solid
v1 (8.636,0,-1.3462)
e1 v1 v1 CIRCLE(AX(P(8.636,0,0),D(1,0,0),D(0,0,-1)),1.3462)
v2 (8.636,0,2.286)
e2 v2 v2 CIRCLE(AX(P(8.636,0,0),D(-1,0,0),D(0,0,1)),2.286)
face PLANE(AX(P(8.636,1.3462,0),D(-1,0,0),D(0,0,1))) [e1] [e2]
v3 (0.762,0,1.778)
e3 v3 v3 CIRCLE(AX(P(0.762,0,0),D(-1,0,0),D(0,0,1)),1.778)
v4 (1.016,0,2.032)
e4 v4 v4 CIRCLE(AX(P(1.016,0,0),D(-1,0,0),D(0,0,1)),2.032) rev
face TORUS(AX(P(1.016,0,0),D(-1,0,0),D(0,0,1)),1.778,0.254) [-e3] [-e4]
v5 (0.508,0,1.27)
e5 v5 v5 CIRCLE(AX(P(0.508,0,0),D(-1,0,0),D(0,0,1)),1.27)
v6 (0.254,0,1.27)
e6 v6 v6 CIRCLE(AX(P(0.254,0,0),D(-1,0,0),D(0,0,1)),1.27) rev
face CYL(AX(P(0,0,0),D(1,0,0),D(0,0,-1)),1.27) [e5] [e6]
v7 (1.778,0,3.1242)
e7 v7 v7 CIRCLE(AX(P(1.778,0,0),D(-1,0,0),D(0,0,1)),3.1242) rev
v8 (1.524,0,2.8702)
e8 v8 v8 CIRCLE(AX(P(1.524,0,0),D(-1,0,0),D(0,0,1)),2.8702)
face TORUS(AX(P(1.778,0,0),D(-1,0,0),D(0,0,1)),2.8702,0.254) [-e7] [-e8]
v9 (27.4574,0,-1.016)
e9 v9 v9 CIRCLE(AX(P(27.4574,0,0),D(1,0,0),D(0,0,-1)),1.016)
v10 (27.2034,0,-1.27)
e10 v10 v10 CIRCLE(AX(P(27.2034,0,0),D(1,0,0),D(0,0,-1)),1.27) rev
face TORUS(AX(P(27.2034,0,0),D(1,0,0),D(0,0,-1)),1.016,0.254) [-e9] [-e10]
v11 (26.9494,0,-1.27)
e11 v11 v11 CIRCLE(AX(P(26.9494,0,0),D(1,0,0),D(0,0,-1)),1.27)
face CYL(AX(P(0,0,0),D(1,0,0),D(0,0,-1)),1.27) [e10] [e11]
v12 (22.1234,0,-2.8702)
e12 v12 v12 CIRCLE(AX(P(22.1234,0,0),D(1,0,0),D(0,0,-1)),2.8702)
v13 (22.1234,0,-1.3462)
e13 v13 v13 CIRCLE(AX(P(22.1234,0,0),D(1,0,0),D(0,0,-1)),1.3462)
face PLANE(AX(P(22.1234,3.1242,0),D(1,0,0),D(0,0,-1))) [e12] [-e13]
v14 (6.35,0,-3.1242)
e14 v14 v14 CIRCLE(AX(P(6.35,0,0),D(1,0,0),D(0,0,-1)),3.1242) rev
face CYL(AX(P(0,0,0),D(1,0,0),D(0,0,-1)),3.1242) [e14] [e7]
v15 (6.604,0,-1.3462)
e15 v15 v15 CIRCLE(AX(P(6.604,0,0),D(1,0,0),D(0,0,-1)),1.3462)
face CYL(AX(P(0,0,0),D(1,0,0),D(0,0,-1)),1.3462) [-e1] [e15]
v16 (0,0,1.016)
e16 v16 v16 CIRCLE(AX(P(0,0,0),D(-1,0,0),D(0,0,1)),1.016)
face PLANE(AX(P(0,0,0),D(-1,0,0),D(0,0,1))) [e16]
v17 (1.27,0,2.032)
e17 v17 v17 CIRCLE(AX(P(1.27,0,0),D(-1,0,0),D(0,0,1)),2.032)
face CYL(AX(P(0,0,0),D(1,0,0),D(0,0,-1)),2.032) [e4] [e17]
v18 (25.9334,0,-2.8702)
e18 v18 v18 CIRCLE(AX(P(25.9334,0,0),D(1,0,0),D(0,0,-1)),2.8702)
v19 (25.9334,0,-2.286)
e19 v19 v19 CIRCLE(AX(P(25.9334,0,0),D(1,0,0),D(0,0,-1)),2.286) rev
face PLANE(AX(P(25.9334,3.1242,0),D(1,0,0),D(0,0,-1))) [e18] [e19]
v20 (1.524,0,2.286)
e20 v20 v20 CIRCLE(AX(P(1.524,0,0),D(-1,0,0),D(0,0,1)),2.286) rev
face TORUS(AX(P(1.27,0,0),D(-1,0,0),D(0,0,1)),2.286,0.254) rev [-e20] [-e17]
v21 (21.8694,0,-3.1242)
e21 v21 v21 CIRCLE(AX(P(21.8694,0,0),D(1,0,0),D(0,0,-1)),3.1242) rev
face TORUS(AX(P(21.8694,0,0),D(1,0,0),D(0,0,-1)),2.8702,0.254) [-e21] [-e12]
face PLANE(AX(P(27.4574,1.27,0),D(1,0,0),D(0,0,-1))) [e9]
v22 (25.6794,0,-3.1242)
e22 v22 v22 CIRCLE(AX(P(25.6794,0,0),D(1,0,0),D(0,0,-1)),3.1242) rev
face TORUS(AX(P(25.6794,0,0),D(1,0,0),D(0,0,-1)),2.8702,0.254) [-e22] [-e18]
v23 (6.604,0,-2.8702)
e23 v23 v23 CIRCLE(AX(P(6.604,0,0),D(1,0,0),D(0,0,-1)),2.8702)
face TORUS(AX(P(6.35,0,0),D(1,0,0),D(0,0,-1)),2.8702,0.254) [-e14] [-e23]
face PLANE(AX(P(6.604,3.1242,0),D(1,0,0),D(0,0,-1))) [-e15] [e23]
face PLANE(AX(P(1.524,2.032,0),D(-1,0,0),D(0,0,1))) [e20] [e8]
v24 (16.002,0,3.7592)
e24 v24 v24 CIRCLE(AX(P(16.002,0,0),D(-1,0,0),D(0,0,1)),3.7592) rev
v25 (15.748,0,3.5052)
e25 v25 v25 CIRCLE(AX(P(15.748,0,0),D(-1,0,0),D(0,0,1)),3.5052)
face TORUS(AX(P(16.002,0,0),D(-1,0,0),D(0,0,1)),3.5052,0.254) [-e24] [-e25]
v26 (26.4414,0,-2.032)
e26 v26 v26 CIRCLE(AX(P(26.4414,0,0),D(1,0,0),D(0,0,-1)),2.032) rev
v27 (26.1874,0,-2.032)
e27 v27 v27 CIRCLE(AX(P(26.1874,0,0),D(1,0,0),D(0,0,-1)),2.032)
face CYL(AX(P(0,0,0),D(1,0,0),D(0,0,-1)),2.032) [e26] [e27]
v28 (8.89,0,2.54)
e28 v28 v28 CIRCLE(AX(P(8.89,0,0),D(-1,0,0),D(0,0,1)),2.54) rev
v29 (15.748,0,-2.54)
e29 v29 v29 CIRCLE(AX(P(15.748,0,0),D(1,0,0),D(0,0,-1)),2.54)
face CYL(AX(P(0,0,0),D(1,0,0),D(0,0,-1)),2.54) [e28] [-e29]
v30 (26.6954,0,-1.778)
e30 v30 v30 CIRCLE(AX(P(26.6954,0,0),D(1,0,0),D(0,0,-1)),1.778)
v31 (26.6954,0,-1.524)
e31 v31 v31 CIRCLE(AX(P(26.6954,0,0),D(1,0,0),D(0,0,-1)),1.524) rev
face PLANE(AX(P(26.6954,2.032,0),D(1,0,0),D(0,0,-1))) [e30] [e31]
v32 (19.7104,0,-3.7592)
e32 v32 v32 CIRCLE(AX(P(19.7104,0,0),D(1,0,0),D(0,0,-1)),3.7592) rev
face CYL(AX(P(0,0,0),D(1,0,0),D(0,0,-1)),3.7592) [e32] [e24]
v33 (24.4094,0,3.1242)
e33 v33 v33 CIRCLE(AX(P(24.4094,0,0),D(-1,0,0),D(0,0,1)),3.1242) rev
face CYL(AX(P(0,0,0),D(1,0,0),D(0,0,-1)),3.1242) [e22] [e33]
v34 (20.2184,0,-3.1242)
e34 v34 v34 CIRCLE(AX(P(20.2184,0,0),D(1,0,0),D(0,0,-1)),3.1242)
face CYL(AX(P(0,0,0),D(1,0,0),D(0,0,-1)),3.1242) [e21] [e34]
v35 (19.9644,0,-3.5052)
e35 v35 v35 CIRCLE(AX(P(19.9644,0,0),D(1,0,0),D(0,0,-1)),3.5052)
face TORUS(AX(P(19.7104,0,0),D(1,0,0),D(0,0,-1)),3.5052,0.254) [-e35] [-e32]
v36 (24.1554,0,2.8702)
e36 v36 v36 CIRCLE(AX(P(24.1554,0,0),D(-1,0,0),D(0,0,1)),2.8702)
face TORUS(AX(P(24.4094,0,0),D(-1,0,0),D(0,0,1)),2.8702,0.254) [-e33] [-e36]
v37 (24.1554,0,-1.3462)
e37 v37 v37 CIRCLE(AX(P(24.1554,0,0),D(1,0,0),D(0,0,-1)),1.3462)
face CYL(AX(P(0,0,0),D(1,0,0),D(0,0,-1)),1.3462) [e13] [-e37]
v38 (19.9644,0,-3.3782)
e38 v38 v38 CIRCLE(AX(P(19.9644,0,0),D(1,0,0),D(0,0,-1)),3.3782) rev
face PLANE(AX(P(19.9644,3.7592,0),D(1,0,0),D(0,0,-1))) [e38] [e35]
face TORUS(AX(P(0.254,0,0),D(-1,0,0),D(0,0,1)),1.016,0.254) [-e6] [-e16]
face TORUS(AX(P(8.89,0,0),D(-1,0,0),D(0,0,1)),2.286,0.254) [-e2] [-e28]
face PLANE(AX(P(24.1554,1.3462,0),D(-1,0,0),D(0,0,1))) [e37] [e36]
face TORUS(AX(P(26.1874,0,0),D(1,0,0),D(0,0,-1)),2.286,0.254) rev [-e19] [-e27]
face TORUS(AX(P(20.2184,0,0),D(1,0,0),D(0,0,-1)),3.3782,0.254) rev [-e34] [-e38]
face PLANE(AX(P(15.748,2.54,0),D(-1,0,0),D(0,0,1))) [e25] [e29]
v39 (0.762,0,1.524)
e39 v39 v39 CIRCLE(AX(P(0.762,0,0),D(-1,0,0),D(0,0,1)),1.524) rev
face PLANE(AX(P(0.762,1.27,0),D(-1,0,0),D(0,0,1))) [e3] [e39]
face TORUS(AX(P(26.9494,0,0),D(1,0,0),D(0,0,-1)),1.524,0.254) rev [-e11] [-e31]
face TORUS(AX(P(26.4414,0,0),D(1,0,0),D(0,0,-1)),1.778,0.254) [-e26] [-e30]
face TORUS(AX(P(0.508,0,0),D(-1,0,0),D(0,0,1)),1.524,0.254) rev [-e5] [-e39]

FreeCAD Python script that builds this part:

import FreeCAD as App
import Part
import Sketcher
from FreeCAD import Vector
Q = App.Units.Quantity


def edges_at(feature, points):
    """Names of the edges that pass closest to the given points."""
    edges = feature.Shape.Edges
    near = lambda p: min(range(len(edges)), key=lambda i: edges[i].distToShape(Part.Vertex(*p))[0])
    return sorted({f"Edge{near(p) + 1}" for p in points})

doc = App.newDocument("Part")
body = doc.addObject("PartDesign::Body", "Body")

# Sketch on XY plane
sketch1 = body.newObject("Sketcher::SketchObject", "Sketch")
sketch1.AttachmentSupport = (doc.getObject("XY_Plane"), [""])
sketch1.MapMode = "FlatFace"
sketch1.addGeometry(Part.LineSegment(Vector(0, 0, 0), Vector(27.4574, 0, 0)), False)
sketch1.addGeometry(Part.LineSegment(Vector(27.4574, 0, 0), Vector(27.4574, 1.27, 0)), False)
sketch1.addGeometry(Part.LineSegment(Vector(27.4574, 1.27, 0), Vector(26.6954, 1.27, 0)), False)
sketch1.addGeometry(Part.LineSegment(Vector(26.6954, 1.27, 0), Vector(26.6954, 2.032, 0)), False)
sketch1.addGeometry(Part.LineSegment(Vector(26.6954, 2.032, 0), Vector(25.9334, 2.032, 0)), False)
sketch1.addGeometry(Part.LineSegment(Vector(25.9334, 2.032, 0), Vector(25.9334, 3.1242, 0)), False)
sketch1.addGeometry(Part.LineSegment(Vector(25.9334, 3.1242, 0), Vector(24.1554, 3.1242, 0)), False)
sketch1.addGeometry(Part.LineSegment(Vector(24.1554, 3.1242, 0), Vector(24.1554, 1.3462, 0)), False)
sketch1.addGeometry(Part.LineSegment(Vector(24.1554, 1.3462, 0), Vector(22.1234, 1.3462, 0)), False)
sketch1.addGeometry(Part.LineSegment(Vector(22.1234, 1.3462, 0), Vector(22.1234, 3.1242, 0)), False)
sketch1.addGeometry(Part.LineSegment(Vector(22.1234, 3.1242, 0), Vector(19.9644, 3.1242, 0)), False)
sketch1.addGeometry(Part.LineSegment(Vector(19.9644, 3.1242, 0), Vector(19.9644, 3.7592, 0)), False)
sketch1.addGeometry(Part.LineSegment(Vector(19.9644, 3.7592, 0), Vector(15.748, 3.7592, 0)), False)
sketch1.addGeometry(Part.LineSegment(Vector(15.748, 3.7592, 0), Vector(15.748, 2.54, 0)), False)
sketch1.addGeometry(Part.LineSegment(Vector(15.748, 2.54, 0), Vector(8.636, 2.54, 0)), False)
sketch1.addGeometry(Part.LineSegment(Vector(8.636, 2.54, 0), Vector(8.636, 1.3462, 0)), False)
sketch1.addGeometry(Part.LineSegment(Vector(8.636, 1.3462, 0), Vector(6.604, 1.3462, 0)), False)
sketch1.addGeometry(Part.LineSegment(Vector(6.604, 1.3462, 0), Vector(6.604, 3.1242, 0)), False)
sketch1.addGeometry(Part.LineSegment(Vector(6.604, 3.1242, 0), Vector(1.524, 3.1242, 0)), False)
sketch1.addGeometry(Part.LineSegment(Vector(1.524, 3.1242, 0), Vector(1.524, 2.032, 0)), False)
sketch1.addGeometry(Part.LineSegment(Vector(1.524, 2.032, 0), Vector(0.762, 2.032, 0)), False)
sketch1.addGeometry(Part.LineSegment(Vector(0.762, 2.032, 0), Vector(0.762, 1.27, 0)), False)
sketch1.addGeometry(Part.LineSegment(Vector(0.762, 1.27, 0), Vector(0, 1.27, 0)), False)
sketch1.addGeometry(Part.LineSegment(Vector(0, 1.27, 0), Vector(0, 0, 0)), False)
sketch1.addConstraint(Sketcher.Constraint("Coincident", 0, 2, 1, 1))
sketch1.addConstraint(Sketcher.Constraint("Coincident", 1, 2, 2, 1))
sketch1.addConstraint(Sketcher.Constraint("Coincident", 2, 2, 3, 1))
sketch1.addConstraint(Sketcher.Constraint("Coincident", 3, 2, 4, 1))
sketch1.addConstraint(Sketcher.Constraint("Coincident", 4, 2, 5, 1))
sketch1.addConstraint(Sketcher.Constraint("Coincident", 5, 2, 6, 1))
sketch1.addConstraint(Sketcher.Constraint("Coincident", 6, 2, 7, 1))
sketch1.addConstraint(Sketcher.Constraint("Coincident", 7, 2, 8, 1))
sketch1.addConstraint(Sketcher.Constraint("Coincident", 8, 2, 9, 1))
sketch1.addConstraint(Sketcher.Constraint("Coincident", 9, 2, 10, 1))
sketch1.addConstraint(Sketcher.Constraint("Coincident", 10, 2, 11, 1))
sketch1.addConstraint(Sketcher.Constraint("Coincident", 11, 2, 12, 1))
sketch1.addConstraint(Sketcher.Constraint("Coincident", 12, 2, 13, 1))
sketch1.addConstraint(Sketcher.Constraint("Coincident", 13, 2, 14, 1))
sketch1.addConstraint(Sketcher.Constraint("Coincident", 14, 2, 15, 1))
sketch1.addConstraint(Sketcher.Constraint("Coincident", 15, 2, 16, 1))
sketch1.addConstraint(Sketcher.Constraint("Coincident", 16, 2, 17, 1))
sketch1.addConstraint(Sketcher.Constraint("Coincident", 17, 2, 18, 1))
sketch1.addConstraint(Sketcher.Constraint("Coincident", 18, 2, 19, 1))
sketch1.addConstraint(Sketcher.Constraint("Coincident", 19, 2, 20, 1))
sketch1.addConstraint(Sketcher.Constraint("Coincident", 20, 2, 21, 1))
sketch1.addConstraint(Sketcher.Constraint("Coincident", 21, 2, 22, 1))
sketch1.addConstraint(Sketcher.Constraint("Coincident", 22, 2, 23, 1))
sketch1.addConstraint(Sketcher.Constraint("Coincident", 23, 2, 0, 1))
sketch1.addConstraint(Sketcher.Constraint("Horizontal", 0))
sketch1.addConstraint(Sketcher.Constraint("Vertical", 1))
sketch1.addConstraint(Sketcher.Constraint("Horizontal", 2))
sketch1.addConstraint(Sketcher.Constraint("Vertical", 3))
sketch1.addConstraint(Sketcher.Constraint("Horizontal", 4))
sketch1.addConstraint(Sketcher.Constraint("Vertical", 5))
sketch1.addConstraint(Sketcher.Constraint("Horizontal", 6))
sketch1.addConstraint(Sketcher.Constraint("Vertical", 7))
sketch1.addConstraint(Sketcher.Constraint("Horizontal", 8))
sketch1.addConstraint(Sketcher.Constraint("Vertical", 9))
sketch1.addConstraint(Sketcher.Constraint("Horizontal", 10))
sketch1.addConstraint(Sketcher.Constraint("Vertical", 11))
sketch1.addConstraint(Sketcher.Constraint("Horizontal", 12))
sketch1.addConstraint(Sketcher.Constraint("Vertical", 13))
sketch1.addConstraint(Sketcher.Constraint("Horizontal", 14))
sketch1.addConstraint(Sketcher.Constraint("Vertical", 15))
sketch1.addConstraint(Sketcher.Constraint("Horizontal", 16))
sketch1.addConstraint(Sketcher.Constraint("Vertical", 17))
sketch1.addConstraint(Sketcher.Constraint("Horizontal", 18))
sketch1.addConstraint(Sketcher.Constraint("Vertical", 19))
sketch1.addConstraint(Sketcher.Constraint("Horizontal", 20))
sketch1.addConstraint(Sketcher.Constraint("Vertical", 21))
sketch1.addConstraint(Sketcher.Constraint("Horizontal", 22))
sketch1.addConstraint(Sketcher.Constraint("Vertical", 23))
sketch1.addConstraint(Sketcher.Constraint("Coincident", 23, 2, -1, 1))
sketch1.addConstraint(Sketcher.Constraint("Horizontal", 6, 2, 9, 2))
sketch1.addConstraint(Sketcher.Constraint("Horizontal", 8, 2, 15, 2))
sketch1.addConstraint(Sketcher.Constraint("Horizontal", 10, 2, 17, 2))
sketch1.addConstraint(Sketcher.Constraint("Horizontal", 4, 2, 19, 2))
sketch1.addConstraint(Sketcher.Constraint("Horizontal", 2, 2, 21, 2))
sketch1.addConstraint(Sketcher.Constraint("Equal", 2, 4))
sketch1.addConstraint(Sketcher.Constraint("Equal", 8, 16))
sketch1.addConstraint(Sketcher.Constraint("Equal", 4, 20))
sketch1.addConstraint(Sketcher.Constraint("Equal", 20, 22))
sketch1.addConstraint(Sketcher.Constraint("Equal", 22, 3))
sketch1.addConstraint(Sketcher.Constraint("Equal", 6, 7))
sketch1.addConstraint(Sketcher.Constraint("DistanceX", 18, 2, 18, 1, Q("0.2 in")))
sketch1.addConstraint(Sketcher.Constraint("DistanceX", 2, 2, 2, 1, Q("0.03 in")))
sketch1.addConstraint(Sketcher.Constraint("DistanceX", 6, 2, 6, 1, Q("0.07 in")))
sketch1.addConstraint(Sketcher.Constraint("DistanceX", 8, 2, 8, 1, Q("0.08 in")))
sketch1.addConstraint(Sketcher.Constraint("DistanceX", 14, 2, 14, 1, Q("0.28 in")))
sketch1.addConstraint(Sketcher.Constraint("DistanceY", 1, 1, 1, 2, Q("0.05 in")))
sketch1.addConstraint(Sketcher.Constraint("DistanceY", -1, 1, 13, 2, Q("0.1 in")))
sketch1.addConstraint(Sketcher.Constraint("DistanceX", 0, 1, 0, 2, Q("1.081 in")))
sketch1.addConstraint(Sketcher.Constraint("DistanceX", 10, 2, 10, 1, Q("0.085 in")))
sketch1.addConstraint(Sketcher.Constraint("DistanceY", 5, 1, 5, 2, Q("0.043 in")))
sketch1.addConstraint(Sketcher.Constraint("DistanceY", 11, 1, 11, 2, Q("0.025 in")))
revolution = body.newObject("PartDesign::Revolution", "Revolution")
revolution.Profile = sketch1
revolution.ReferenceAxis = (sketch1, ["H_Axis"])
revolution.Angle = 360
doc.recompute()

fillet = body.newObject("PartDesign::Fillet", "Fillet")
fillet.Base = (revolution, edges_at(revolution, [
    (1.524, -3.124, 0),
    (1.524, -2.032, 0),
    (0.762, -2.032, 0),
    (0.762, -1.27, 0),
    (0, -1.27, 0),
]))
fillet.Radius = Q("0.01 in")
doc.recompute()

fillet2 = body.newObject("PartDesign::Fillet", "Fillet001")
fillet2.Base = (fillet, edges_at(fillet, [
    (27.457, -1.27, 0),
    (26.695, -1.27, 0),
    (26.695, -2.032, 0),
    (25.933, -2.032, 0),
    (25.933, -3.124, 0),
    (24.155, -3.124, 0),
    (22.123, -3.124, 0),
    (19.964, -3.124, 0),
    (19.964, -3.759, 0),
    (15.748, -3.759, 0),
    (8.636, -2.54, 0),
    (6.604, -3.124, 0),
]))
fillet2.Radius = Q("0.01 in")

doc.recompute()
